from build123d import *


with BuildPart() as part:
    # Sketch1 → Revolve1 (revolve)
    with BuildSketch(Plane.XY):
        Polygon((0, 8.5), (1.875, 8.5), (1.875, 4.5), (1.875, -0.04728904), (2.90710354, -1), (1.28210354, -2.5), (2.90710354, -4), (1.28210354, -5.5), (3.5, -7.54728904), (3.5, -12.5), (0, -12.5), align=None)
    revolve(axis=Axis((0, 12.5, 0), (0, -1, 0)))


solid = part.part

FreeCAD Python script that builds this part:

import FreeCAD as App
import Part
import Sketcher

V = App.Vector

doc = App.newDocument("Part")
body = doc.addObject("PartDesign::Body", "Body")

# Sketch on XY plane
sketch1 = doc.addObject("Sketcher::SketchObject", "Sketch")
body.addObject(sketch1)
sketch1.AttachmentSupport = (doc.XY_Plane, [""])
sketch1.MapMode = "FlatFace"
sketch1.addGeometry([
    Part.LineSegment(V(1.9, 8.5, 0), V(0, 8.5, 0)),  # 0
    Part.LineSegment(V(0, 8.5, 0), V(0, -12.5, 0)),  # 1
    Part.LineSegment(V(0, -12.5, 0), V(3.5, -12.5, 0)),  # 2
    Part.LineSegment(V(3.5, -12.5, 0), V(3.5, -7.5, 0)),  # 3
    Part.LineSegment(V(3.5, -7.5, 0), V(1.3, -5.5, 0)),  # 4
    Part.LineSegment(V(1.3, -5.5, 0), V(2.9, -4, 0)),  # 5
    Part.LineSegment(V(2.9, -4, 0), V(1.3, -2.5, 0)),  # 6
    Part.LineSegment(V(1.3, -2.5, 0), V(2.9, -1, 0)),  # 7
    Part.LineSegment(V(2.9, -1, 0), V(1.9, 0, 0)),  # 8
    Part.LineSegment(V(1.9, 0, 0), V(1.9, 8.5, 0)),  # 9
], False)
sketch1.addConstraint([
    Sketcher.Constraint("Coincident", 0, 2, 1, 1),
    Sketcher.Constraint("Coincident", 1, 2, 2, 1),
    Sketcher.Constraint("Coincident", 2, 2, 3, 1),
    Sketcher.Constraint("Coincident", 3, 2, 4, 1),
    Sketcher.Constraint("Coincident", 4, 2, 5, 1),
    Sketcher.Constraint("Coincident", 5, 2, 6, 1),
    Sketcher.Constraint("Coincident", 6, 2, 7, 1),
    Sketcher.Constraint("Coincident", 7, 2, 8, 1),
    Sketcher.Constraint("Coincident", 8, 2, 9, 1),
    Sketcher.Constraint("Coincident", 9, 2, 0, 1),
    Sketcher.Constraint("Horizontal", 0),
    Sketcher.Constraint("Vertical", 1),
    Sketcher.Constraint("Horizontal", 2),
    Sketcher.Constraint("Vertical", 3),
    Sketcher.Constraint("Vertical", 9),
    Sketcher.Constraint("PointOnObject", 0, 2, -2),
    Sketcher.Constraint("Parallel", 4, 6),
    Sketcher.Constraint("Parallel", 5, 7),
    Sketcher.Constraint("Parallel", 6, 8),
    Sketcher.Constraint("Vertical", 4, 2, 6, 2),
    Sketcher.Constraint("Vertical", 5, 2, 7, 2),
    Sketcher.Constraint("Equal", 5, 6),
    Sketcher.Constraint("DistanceY", 1, 2, 1, 1, 21.0),
    Sketcher.Constraint("DistanceX", 2, 1, 2, 2, 3.5),
    Sketcher.Constraint("DistanceY", 5, 2, -1, 1, 4.0),
    Sketcher.Constraint("DistanceY", 7, 2, -1, 1, 1.0),
    Sketcher.Constraint("DistanceY", 1, 2, 4, 2, 7.0),
    Sketcher.Constraint("DistanceY", 3, 2, 8, 2, 7.5),
    Sketcher.Constraint("DistanceX", 0, 2, 0, 1, 1.875),
    Sketcher.Constraint("Distance", 8, 1.404598),
])
revolution = doc.addObject("PartDesign::Revolution", "Revolution")
body.addObject(revolution)
revolution.Profile = sketch1
revolution.ReferenceAxis = (sketch1, ["V_Axis"])
revolution.Angle = 360

doc.recompute()
